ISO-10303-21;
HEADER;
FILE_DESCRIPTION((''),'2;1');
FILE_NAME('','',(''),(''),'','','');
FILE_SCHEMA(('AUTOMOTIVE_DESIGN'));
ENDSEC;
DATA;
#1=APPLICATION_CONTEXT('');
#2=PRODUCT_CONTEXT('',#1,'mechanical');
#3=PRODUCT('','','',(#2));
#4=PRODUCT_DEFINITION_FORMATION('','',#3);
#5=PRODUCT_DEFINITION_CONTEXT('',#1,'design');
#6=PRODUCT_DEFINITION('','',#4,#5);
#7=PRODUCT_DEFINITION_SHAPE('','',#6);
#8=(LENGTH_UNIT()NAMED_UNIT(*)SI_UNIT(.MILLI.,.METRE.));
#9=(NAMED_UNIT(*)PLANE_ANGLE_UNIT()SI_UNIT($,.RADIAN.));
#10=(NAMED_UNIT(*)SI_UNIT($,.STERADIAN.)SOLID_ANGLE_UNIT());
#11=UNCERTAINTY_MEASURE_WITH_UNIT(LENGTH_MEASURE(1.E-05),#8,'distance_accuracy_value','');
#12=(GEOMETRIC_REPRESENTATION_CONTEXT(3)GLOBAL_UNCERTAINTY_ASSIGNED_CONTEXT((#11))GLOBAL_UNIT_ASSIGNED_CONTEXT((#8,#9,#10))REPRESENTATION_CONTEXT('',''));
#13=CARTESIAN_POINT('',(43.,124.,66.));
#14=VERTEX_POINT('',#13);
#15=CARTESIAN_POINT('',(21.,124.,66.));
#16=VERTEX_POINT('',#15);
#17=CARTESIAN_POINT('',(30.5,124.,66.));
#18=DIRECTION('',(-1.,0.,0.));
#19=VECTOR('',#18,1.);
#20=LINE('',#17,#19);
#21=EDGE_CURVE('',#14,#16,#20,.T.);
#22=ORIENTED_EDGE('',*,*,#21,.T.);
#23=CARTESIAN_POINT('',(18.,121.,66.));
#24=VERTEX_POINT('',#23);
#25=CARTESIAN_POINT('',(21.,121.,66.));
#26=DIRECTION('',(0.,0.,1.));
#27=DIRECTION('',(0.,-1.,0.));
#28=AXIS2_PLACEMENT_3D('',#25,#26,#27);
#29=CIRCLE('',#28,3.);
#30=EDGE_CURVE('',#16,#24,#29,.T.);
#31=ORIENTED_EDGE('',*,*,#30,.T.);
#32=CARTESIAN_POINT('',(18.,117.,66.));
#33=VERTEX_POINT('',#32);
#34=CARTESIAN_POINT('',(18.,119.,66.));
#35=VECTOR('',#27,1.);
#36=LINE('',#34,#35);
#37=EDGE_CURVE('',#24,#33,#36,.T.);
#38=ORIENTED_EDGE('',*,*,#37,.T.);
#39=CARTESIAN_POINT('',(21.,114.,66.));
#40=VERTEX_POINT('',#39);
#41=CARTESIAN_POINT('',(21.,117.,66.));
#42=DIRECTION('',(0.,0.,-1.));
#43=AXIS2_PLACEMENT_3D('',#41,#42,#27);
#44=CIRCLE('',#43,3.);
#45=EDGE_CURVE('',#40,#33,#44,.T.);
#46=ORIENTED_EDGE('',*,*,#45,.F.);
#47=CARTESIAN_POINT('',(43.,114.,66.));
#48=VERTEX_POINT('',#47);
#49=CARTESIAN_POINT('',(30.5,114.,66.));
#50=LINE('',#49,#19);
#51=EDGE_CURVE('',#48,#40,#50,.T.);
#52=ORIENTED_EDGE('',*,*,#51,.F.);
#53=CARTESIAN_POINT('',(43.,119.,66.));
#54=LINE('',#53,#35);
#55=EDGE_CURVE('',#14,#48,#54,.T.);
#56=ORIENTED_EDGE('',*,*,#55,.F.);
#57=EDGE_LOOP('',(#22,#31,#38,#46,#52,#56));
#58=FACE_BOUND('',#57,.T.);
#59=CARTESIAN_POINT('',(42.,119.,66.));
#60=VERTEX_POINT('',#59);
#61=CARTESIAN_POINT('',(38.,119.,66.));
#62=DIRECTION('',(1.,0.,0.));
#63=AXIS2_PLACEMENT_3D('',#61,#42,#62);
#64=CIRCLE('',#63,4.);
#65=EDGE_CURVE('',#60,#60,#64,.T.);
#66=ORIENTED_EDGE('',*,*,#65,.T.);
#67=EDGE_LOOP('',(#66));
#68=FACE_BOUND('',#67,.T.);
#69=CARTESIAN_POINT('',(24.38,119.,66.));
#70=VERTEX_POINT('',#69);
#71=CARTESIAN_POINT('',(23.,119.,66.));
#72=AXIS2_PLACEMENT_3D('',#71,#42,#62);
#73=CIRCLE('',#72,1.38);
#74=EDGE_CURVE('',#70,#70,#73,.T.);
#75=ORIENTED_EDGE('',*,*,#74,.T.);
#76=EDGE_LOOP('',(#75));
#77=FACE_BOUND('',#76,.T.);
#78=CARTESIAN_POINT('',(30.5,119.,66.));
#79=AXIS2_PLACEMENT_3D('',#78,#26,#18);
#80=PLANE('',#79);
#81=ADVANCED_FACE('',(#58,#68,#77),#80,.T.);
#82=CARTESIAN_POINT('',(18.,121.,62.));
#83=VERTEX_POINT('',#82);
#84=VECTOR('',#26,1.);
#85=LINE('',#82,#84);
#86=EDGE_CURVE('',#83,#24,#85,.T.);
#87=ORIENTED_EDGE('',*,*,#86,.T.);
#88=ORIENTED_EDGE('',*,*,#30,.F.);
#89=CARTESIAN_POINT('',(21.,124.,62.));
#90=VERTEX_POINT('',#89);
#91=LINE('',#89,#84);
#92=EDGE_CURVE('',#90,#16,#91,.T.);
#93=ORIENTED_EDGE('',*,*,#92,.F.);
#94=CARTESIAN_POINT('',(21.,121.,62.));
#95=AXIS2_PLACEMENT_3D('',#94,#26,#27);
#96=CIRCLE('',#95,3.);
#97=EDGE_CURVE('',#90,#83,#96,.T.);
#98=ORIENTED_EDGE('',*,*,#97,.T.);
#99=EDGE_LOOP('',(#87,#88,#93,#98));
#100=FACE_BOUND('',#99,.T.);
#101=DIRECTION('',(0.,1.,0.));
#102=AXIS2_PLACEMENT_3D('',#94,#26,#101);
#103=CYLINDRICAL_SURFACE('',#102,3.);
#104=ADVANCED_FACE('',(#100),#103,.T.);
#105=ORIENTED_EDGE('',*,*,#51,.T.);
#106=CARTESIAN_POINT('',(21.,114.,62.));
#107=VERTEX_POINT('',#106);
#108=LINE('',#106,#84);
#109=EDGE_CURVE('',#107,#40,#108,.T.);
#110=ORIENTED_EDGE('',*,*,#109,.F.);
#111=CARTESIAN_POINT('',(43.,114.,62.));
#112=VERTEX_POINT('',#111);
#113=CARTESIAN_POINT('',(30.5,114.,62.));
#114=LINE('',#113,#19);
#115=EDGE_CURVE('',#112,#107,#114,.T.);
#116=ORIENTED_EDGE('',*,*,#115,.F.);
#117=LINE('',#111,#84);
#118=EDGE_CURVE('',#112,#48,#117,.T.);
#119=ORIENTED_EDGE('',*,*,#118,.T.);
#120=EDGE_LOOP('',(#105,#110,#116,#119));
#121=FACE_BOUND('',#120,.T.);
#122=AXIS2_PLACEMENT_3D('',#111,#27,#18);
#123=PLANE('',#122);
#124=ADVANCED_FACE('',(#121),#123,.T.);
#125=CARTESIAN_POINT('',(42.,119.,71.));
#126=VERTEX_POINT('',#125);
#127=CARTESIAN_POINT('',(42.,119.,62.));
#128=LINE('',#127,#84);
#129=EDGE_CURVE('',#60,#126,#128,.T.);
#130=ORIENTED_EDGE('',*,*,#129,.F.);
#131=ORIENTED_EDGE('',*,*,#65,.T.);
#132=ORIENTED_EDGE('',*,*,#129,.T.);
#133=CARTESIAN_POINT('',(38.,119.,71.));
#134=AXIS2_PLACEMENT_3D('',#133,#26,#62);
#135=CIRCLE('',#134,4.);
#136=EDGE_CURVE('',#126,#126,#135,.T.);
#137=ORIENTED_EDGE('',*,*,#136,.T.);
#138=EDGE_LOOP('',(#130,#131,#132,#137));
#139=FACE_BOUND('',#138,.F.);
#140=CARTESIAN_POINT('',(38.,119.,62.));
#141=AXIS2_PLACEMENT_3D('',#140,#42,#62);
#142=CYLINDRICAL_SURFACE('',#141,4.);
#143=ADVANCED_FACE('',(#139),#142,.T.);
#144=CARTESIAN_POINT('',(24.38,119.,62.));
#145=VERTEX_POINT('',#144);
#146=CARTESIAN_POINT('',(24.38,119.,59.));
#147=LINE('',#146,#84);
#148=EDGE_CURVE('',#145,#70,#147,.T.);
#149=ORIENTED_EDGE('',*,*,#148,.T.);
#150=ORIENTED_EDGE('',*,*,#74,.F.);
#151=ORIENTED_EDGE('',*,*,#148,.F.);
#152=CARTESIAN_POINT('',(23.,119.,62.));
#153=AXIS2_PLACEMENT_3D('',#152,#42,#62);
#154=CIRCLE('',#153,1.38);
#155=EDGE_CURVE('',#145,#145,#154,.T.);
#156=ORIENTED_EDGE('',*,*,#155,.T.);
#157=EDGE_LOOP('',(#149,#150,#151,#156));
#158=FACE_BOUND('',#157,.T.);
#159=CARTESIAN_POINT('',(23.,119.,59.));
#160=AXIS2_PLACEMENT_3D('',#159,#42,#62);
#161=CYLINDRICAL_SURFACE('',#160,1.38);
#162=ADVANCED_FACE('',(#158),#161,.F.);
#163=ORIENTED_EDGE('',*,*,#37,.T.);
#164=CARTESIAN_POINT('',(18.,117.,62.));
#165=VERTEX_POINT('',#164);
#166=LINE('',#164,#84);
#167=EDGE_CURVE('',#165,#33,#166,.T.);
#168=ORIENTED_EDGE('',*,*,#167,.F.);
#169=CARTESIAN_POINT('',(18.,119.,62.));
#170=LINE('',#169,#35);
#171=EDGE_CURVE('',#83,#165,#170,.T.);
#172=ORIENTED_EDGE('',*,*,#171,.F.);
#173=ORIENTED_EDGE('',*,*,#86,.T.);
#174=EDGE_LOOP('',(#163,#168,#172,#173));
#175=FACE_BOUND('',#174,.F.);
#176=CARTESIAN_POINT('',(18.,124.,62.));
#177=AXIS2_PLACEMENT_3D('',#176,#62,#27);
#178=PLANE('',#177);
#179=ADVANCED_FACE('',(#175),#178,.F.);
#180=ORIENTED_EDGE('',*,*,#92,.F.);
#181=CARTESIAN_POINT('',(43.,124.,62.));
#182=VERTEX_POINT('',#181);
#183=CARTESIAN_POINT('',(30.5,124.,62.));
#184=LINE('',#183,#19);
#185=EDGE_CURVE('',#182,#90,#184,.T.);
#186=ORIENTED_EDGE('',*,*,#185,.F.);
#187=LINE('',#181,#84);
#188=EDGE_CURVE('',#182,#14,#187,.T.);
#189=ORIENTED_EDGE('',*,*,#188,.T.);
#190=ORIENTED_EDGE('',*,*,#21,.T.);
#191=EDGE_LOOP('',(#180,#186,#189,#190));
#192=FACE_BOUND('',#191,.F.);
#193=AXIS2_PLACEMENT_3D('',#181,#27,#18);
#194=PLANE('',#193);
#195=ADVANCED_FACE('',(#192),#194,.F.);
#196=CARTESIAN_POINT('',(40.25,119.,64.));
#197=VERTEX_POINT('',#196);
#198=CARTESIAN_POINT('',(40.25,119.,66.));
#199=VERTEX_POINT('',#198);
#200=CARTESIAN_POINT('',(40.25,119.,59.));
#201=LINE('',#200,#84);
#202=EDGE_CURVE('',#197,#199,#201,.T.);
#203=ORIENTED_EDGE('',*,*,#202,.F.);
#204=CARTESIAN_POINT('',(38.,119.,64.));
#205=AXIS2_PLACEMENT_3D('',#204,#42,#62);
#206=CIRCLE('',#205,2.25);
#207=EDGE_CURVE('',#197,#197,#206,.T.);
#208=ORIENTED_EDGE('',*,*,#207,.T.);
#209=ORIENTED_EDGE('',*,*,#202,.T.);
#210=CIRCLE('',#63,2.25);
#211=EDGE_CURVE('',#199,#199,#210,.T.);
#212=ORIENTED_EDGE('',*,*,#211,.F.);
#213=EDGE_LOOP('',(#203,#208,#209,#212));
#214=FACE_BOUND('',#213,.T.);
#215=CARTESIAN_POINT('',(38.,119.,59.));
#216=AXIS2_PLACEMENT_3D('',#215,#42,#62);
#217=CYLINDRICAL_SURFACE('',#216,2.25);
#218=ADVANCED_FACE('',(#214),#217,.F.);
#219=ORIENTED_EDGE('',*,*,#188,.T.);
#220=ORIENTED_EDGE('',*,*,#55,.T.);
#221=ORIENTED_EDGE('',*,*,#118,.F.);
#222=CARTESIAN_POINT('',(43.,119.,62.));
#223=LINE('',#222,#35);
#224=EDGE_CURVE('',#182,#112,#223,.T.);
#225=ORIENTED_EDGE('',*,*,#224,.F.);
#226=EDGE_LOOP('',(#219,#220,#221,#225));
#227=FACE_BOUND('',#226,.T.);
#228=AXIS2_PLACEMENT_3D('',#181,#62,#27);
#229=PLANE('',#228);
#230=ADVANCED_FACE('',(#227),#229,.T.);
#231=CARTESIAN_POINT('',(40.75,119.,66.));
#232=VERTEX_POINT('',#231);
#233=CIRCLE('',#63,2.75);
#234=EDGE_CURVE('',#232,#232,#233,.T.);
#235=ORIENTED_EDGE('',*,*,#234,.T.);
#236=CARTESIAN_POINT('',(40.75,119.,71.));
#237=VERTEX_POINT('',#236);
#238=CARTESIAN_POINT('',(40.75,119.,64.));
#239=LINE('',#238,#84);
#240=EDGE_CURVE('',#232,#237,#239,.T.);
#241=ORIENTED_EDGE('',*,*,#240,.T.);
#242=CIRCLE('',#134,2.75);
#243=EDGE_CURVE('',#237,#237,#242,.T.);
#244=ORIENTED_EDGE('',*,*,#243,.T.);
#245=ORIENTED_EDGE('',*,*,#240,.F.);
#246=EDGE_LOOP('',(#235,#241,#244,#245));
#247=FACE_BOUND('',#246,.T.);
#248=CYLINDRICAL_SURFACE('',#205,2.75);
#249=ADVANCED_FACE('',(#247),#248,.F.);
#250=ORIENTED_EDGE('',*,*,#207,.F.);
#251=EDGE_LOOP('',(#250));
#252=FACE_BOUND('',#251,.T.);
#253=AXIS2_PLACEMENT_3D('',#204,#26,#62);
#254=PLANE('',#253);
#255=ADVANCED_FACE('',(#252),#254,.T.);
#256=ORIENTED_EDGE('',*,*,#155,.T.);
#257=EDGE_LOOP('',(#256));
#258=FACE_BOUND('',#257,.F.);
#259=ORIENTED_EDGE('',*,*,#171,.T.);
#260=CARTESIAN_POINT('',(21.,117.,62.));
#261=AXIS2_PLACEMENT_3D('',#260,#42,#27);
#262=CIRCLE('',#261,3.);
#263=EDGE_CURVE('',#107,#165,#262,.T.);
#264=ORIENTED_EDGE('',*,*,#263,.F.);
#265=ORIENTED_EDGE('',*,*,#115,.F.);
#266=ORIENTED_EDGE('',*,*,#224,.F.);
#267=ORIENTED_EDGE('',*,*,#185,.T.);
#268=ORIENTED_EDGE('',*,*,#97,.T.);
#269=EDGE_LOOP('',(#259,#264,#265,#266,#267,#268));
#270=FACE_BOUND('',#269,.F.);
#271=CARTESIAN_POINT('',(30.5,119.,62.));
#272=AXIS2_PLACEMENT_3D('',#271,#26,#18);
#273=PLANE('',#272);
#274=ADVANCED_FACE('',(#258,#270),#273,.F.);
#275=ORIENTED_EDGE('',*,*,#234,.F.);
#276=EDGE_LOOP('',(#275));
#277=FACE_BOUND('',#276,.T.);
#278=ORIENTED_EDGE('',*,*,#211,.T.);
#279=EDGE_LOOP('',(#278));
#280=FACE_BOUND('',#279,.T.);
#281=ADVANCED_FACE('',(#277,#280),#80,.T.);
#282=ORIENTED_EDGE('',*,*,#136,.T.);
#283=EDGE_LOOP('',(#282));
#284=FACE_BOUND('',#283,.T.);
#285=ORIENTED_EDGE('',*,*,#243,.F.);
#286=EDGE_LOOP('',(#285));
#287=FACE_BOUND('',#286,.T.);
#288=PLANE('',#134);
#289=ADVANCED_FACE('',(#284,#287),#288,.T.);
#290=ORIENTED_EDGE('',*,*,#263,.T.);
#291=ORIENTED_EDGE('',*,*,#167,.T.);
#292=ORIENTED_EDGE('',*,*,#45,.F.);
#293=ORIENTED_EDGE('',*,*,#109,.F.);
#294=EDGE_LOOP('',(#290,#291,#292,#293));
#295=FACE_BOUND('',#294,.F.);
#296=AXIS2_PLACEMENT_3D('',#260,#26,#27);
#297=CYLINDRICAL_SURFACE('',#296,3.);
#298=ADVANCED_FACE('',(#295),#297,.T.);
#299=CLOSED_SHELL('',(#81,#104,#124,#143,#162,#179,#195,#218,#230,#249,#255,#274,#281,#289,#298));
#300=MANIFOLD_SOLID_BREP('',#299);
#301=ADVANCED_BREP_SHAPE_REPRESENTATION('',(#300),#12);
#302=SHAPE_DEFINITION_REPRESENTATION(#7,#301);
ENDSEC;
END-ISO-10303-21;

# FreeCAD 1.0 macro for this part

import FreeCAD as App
import Part
import Sketcher
from FreeCAD import Vector


def edges_at(feature, points):
    """Names of the edges that pass closest to the given points."""
    edges = feature.Shape.Edges
    near = lambda p: min(range(len(edges)), key=lambda i: edges[i].distToShape(Part.Vertex(*p))[0])
    return sorted({f"Edge{near(p) + 1}" for p in points})

doc = App.newDocument("Part")
body = doc.addObject("PartDesign::Body", "Body")

sketch1 = body.newObject("Sketcher::SketchObject", "Sketch")
sketch1.AttachmentSupport = (doc.getObject("XY_Plane"), [""])
sketch1.MapMode = "FlatFace"
sketch1.AttachmentOffset = App.Placement(Vector(0, 0, 12), App.Rotation())
sketch1.addGeometry(Part.Circle(Vector(17, 17, 0), Vector(0, 0, 1), 2.8), False)
sketch1.addConstraint([
    Sketcher.Constraint("Diameter", 0, 5.5),
    Sketcher.Constraint("DistanceX", -1, 1, 0, 3, 17.0),
    Sketcher.Constraint("DistanceY", -1, 1, 0, 3, 17.0),
])
pad1 = body.newObject("PartDesign::Pad", "Pad")
pad1.Profile = sketch1
pad1.Length = 7
body2 = doc.addObject("PartDesign::Body", "Body001")

sketch2 = body2.newObject("Sketcher::SketchObject", "Sketch001")
sketch2.AttachmentSupport = (doc.getObject("XY_Plane001"), [""])
sketch2.MapMode = "FlatFace"
sketch2.AttachmentOffset = App.Placement(Vector(0, 0, 10), App.Rotation())
sketch2.addGeometry(Part.Circle(Vector(17, 17, 0), Vector(0, 0, 1), 4), False)
sketch2.addConstraint([
    Sketcher.Constraint("Diameter", 0, 8.0),
    Sketcher.Constraint("DistanceX", -1, 1, 0, 3, 17.0),
    Sketcher.Constraint("DistanceY", -1, 1, 0, 3, 17.0),
])
pad2 = body2.newObject("PartDesign::Pad", "Pad001")
pad2.Profile = sketch2
pad2.Length = 9
doc.recompute()

boolean = body2.newObject("PartDesign::Boolean", "Boolean")
boolean.Type = "Cut"
boolean.addObjects([body])
body3 = doc.addObject("PartDesign::Body", "Body002")
doc.recompute()

body2.Placement = App.Placement(Vector(21, 102, 52), App.Rotation(Vector(0, 0, 1), 0))
boolean2 = body3.newObject("PartDesign::Boolean", "Boolean001")
boolean2.Type = "Fuse"
boolean2.addObjects([body2])
body4 = doc.addObject("PartDesign::Body", "Body003")

sketch3 = body4.newObject("Sketcher::SketchObject", "Sketch002")
sketch3.AttachmentSupport = (doc.getObject("XY_Plane003"), [""])
sketch3.MapMode = "FlatFace"
sketch3.AttachmentOffset = App.Placement(Vector(0, 0, 59), App.Rotation())
sketch3.addGeometry(Part.Circle(Vector(25, 52, 0), Vector(0, 0, 1), 1.4), False)
sketch3.addConstraint([
    Sketcher.Constraint("Diameter", 0, 2.76),
    Sketcher.Constraint("DistanceX", -1, 1, 0, 3, 25.0),
    Sketcher.Constraint("DistanceY", -1, 1, 0, 3, 52.0),
])
pad3 = body4.newObject("PartDesign::Pad", "Pad002")
pad3.Profile = sketch3
pad3.Length = 10
body5 = doc.addObject("PartDesign::Body", "Body004")

sketch4 = body5.newObject("Sketcher::SketchObject", "Sketch003")
sketch4.AttachmentSupport = (doc.getObject("XY_Plane004"), [""])
sketch4.MapMode = "FlatFace"
sketch4.AttachmentOffset = App.Placement(Vector(0, 0, 59), App.Rotation())
sketch4.addGeometry(Part.Circle(Vector(40, 52, 0), Vector(0, 0, 1), 2.2), False)
sketch4.addConstraint([
    Sketcher.Constraint("Diameter", 0, 4.5),
    Sketcher.Constraint("DistanceX", -1, 1, 0, 3, 40.0),
    Sketcher.Constraint("DistanceY", -1, 1, 0, 3, 52.0),
])
pad4 = body5.newObject("PartDesign::Pad", "Pad003")
pad4.Profile = sketch4
pad4.Length = 10
body6 = doc.addObject("PartDesign::Body", "Body005")

sketch5 = body6.newObject("Sketcher::SketchObject", "Sketch004")
sketch5.AttachmentSupport = (doc.getObject("XY_Plane005"), [""])
sketch5.MapMode = "FlatFace"
sketch5.AttachmentOffset = App.Placement(Vector(0, 0, 62), App.Rotation())
sketch5.addGeometry([
    Part.LineSegment(Vector(45, 47, 0), Vector(45, 57, 0)),
    Part.LineSegment(Vector(45, 57, 0), Vector(20, 57, 0)),
    Part.LineSegment(Vector(20, 57, 0), Vector(20, 47, 0)),
    Part.LineSegment(Vector(20, 47, 0), Vector(45, 47, 0)),
], False)
sketch5.addConstraint([
    Sketcher.Constraint("Coincident", 0, 2, 1, 1),
    Sketcher.Constraint("Coincident", 1, 2, 2, 1),
    Sketcher.Constraint("Coincident", 2, 2, 3, 1),
    Sketcher.Constraint("Coincident", 3, 2, 0, 1),
    Sketcher.Constraint("Vertical", 0),
    Sketcher.Constraint("Horizontal", 1),
    Sketcher.Constraint("Vertical", 2),
    Sketcher.Constraint("Horizontal", 3),
    Sketcher.Constraint("DistanceX", 1, 2, 1, 1, 25.0),
    Sketcher.Constraint("DistanceY", 0, 1, 0, 2, 10.0),
    Sketcher.Constraint("DistanceX", -1, 1, 0, 2, 45.0),
    Sketcher.Constraint("DistanceY", -1, 1, 0, 2, 57.0),
])
pad5 = body6.newObject("PartDesign::Pad", "Pad004")
pad5.Profile = sketch5
pad5.Length = 4
doc.recompute()

boolean3 = body6.newObject("PartDesign::Boolean", "Boolean002")
boolean3.Type = "Cut"
boolean3.addObjects([body5])
doc.recompute()

boolean4 = body6.newObject("PartDesign::Boolean", "Boolean003")
boolean4.Type = "Cut"
boolean4.addObjects([body4])
doc.recompute()

fillet = body6.newObject("PartDesign::Fillet", "Fillet")
fillet.Base = (boolean4, edges_at(boolean4, [(20, 57, 64), (20, 47, 64)]))
fillet.Radius = 3
body7 = doc.addObject("PartDesign::Body", "Body006")
doc.recompute()

body6.Placement = App.Placement(Vector(-2, 67, 0), App.Rotation(Vector(0, 0, 1), 0))
boolean5 = body7.newObject("PartDesign::Boolean", "Boolean004")
boolean5.Type = "Fuse"
boolean5.addObjects([body6])
doc.recompute()

boolean6 = body7.newObject("PartDesign::Boolean", "Boolean005")
boolean6.Type = "Fuse"
boolean6.addObjects([body3])

doc.recompute()
